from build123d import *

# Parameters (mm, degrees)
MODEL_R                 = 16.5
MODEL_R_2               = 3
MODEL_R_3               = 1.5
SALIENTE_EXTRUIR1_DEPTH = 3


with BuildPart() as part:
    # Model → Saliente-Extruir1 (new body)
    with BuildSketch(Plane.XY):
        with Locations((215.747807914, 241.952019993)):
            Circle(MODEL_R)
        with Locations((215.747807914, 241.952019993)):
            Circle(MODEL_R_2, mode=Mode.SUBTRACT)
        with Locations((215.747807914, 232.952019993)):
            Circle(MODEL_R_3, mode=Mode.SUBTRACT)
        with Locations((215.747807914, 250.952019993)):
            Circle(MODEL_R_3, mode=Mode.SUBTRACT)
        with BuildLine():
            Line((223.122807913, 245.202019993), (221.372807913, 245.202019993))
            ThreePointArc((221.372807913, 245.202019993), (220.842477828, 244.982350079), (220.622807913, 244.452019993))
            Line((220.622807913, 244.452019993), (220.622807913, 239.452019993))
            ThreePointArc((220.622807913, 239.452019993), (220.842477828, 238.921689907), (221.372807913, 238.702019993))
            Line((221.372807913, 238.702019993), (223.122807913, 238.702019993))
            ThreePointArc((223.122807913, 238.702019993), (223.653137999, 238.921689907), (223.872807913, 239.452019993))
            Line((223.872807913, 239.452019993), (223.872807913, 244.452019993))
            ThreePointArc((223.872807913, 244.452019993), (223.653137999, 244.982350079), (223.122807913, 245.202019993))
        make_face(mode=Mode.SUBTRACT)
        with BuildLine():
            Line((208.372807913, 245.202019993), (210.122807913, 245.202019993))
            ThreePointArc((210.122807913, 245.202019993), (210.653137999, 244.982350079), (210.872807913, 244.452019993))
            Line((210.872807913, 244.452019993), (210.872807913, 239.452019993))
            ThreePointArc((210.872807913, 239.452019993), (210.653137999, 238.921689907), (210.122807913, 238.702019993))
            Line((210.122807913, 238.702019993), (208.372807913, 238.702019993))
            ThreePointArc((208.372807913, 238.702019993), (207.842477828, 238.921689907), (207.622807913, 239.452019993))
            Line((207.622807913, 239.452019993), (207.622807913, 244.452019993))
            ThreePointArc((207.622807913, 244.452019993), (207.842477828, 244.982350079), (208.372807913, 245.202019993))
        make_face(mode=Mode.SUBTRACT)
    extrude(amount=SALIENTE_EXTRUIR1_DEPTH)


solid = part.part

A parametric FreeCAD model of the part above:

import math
import FreeCAD as App
import Part
import Sketcher

V = App.Vector
Q = App.Units.Quantity

doc = App.newDocument("Part")
body = doc.addObject("PartDesign::Body", "Body")

sketch1 = body.newObject("Sketcher::SketchObject", "Sketch")
sketch1.AttachmentSupport = (doc.getObject("XY_Plane"), [""])
sketch1.MapMode = "FlatFace"
sketch1.addGeometry([
    Part.Circle(V(215.747808, 241.95202, 0), V(0, 0, 1), 16.5),
    Part.Circle(V(215.747808, 232.95202, 0), V(0, 0, 1), 1.5),
    Part.ArcOfCircle(Part.Circle(V(208.372808, 244.45202, 0), V(0, 0, 1), 0.75), math.radians(90), math.radians(180)),
    Part.LineSegment(V(208.372808, 245.20202, 0), V(210.122808, 245.20202, 0)),
    Part.ArcOfCircle(Part.Circle(V(210.122808, 244.45202, 0), V(0, 0, 1), 0.75), math.radians(0), math.radians(90)),
    Part.LineSegment(V(210.872808, 244.45202, 0), V(210.872808, 239.45202, 0)),
    Part.ArcOfCircle(Part.Circle(V(210.122808, 239.45202, 0), V(0, 0, 1), 0.75), math.radians(-90), math.radians(0)),
    Part.LineSegment(V(210.122808, 238.70202, 0), V(208.372808, 238.70202, 0)),
    Part.ArcOfCircle(Part.Circle(V(208.372808, 239.45202, 0), V(0, 0, 1), 0.75), math.radians(-180), math.radians(-90)),
    Part.LineSegment(V(207.622808, 239.45202, 0), V(207.622808, 244.45202, 0)),
    Part.Circle(V(215.747808, 241.95202, 0), V(0, 0, 1), 3),
    Part.LineSegment(V(221.372808, 245.20202, 0), V(223.122808, 245.20202, 0)),
    Part.ArcOfCircle(Part.Circle(V(223.122808, 244.45202, 0), V(0, 0, 1), 0.75), math.radians(0), math.radians(90)),
    Part.LineSegment(V(223.872808, 244.45202, 0), V(223.872808, 239.45202, 0)),
    Part.ArcOfCircle(Part.Circle(V(223.122808, 239.45202, 0), V(0, 0, 1), 0.75), math.radians(-90), math.radians(0)),
    Part.LineSegment(V(223.122808, 238.70202, 0), V(221.372808, 238.70202, 0)),
    Part.ArcOfCircle(Part.Circle(V(221.372808, 239.45202, 0), V(0, 0, 1), 0.75), math.radians(-180), math.radians(-90)),
    Part.LineSegment(V(220.622808, 239.45202, 0), V(220.622808, 244.45202, 0)),
    Part.ArcOfCircle(Part.Circle(V(221.372808, 244.45202, 0), V(0, 0, 1), 0.75), math.radians(90), math.radians(180)),
    Part.Circle(V(215.747808, 250.95202, 0), V(0, 0, 1), 1.5),
], False)
sketch1.addConstraint([
    Sketcher.Constraint("Tangent", 2, 1, 3, 1),
    Sketcher.Constraint("Tangent", 3, 2, 4, 2),
    Sketcher.Constraint("Tangent", 4, 1, 5, 1),
    Sketcher.Constraint("Tangent", 5, 2, 6, 2),
    Sketcher.Constraint("Tangent", 6, 1, 7, 1),
    Sketcher.Constraint("Tangent", 7, 2, 8, 2),
    Sketcher.Constraint("Tangent", 8, 1, 9, 1),
    Sketcher.Constraint("Tangent", 9, 2, 2, 2),
    Sketcher.Constraint("Tangent", 11, 2, 12, 2),
    Sketcher.Constraint("Tangent", 12, 1, 13, 1),
    Sketcher.Constraint("Tangent", 13, 2, 14, 2),
    Sketcher.Constraint("Tangent", 14, 1, 15, 1),
    Sketcher.Constraint("Tangent", 15, 2, 16, 2),
    Sketcher.Constraint("Tangent", 16, 1, 17, 1),
    Sketcher.Constraint("Tangent", 17, 2, 18, 2),
    Sketcher.Constraint("Tangent", 18, 1, 11, 1),
    Sketcher.Constraint("Horizontal", 3),
    Sketcher.Constraint("Vertical", 5),
    Sketcher.Constraint("Horizontal", 7),
    Sketcher.Constraint("Vertical", 9),
    Sketcher.Constraint("Horizontal", 11),
    Sketcher.Constraint("Vertical", 13),
    Sketcher.Constraint("Horizontal", 15),
    Sketcher.Constraint("Vertical", 17),
    Sketcher.Constraint("Coincident", 10, 3, 0, 3),
    Sketcher.Constraint("Equal", 2, 4),
    Sketcher.Constraint("Equal", 4, 6),
    Sketcher.Constraint("Equal", 6, 8),
    Sketcher.Constraint("Equal", 8, 12),
    Sketcher.Constraint("Equal", 12, 14),
    Sketcher.Constraint("Equal", 14, 16),
    Sketcher.Constraint("Equal", 16, 18),
    Sketcher.Constraint("Equal", 1, 19),
    Sketcher.Constraint("Horizontal", 4, 3, 12, 3),
    Sketcher.Constraint("Horizontal", 8, 3, 14, 3),
    Sketcher.Constraint("Vertical", 0, 3, 1, 3),
    Sketcher.Constraint("Vertical", 10, 3, 19, 3),
    Sketcher.Constraint("Equal", 7, 11),
    Sketcher.Constraint("Diameter", 0, Q("33 mm")),
    Sketcher.Constraint("Diameter", 1, Q("3 mm")),
    Sketcher.Constraint("Diameter", 10, Q("6 mm")),
    Sketcher.Constraint("DistanceY", 5, 2, 5, 1, Q("5 mm")),
    Sketcher.Constraint("Radius", 2, Q("0.75 mm")),
    Sketcher.Constraint("DistanceY", 1, 3, 0, 3, Q("9 mm")),
    Sketcher.Constraint("DistanceX", 4, 3, 12, 3, Q("13 mm")),
    Sketcher.Constraint("DistanceY", 0, 3, 19, 3, Q("9 mm")),
    Sketcher.Constraint("DistanceX", 3, 1, 3, 2, Q("1.75 mm")),
    Sketcher.Constraint("DistanceY", 0, 3, 2, 3, Q("2.5 mm")),
    Sketcher.Constraint("DistanceX", 2, 3, 0, 3, Q("7.375 mm")),
    Sketcher.Constraint("DistanceY", -1, 1, 0, 3, Q("241.95202 mm")),
    Sketcher.Constraint("DistanceX", -1, 1, 0, 3, Q("215.747808 mm")),
])
pad1 = body.newObject("PartDesign::Pad", "Pad")
pad1.Profile = sketch1
pad1.Length = 3

doc.recompute()
